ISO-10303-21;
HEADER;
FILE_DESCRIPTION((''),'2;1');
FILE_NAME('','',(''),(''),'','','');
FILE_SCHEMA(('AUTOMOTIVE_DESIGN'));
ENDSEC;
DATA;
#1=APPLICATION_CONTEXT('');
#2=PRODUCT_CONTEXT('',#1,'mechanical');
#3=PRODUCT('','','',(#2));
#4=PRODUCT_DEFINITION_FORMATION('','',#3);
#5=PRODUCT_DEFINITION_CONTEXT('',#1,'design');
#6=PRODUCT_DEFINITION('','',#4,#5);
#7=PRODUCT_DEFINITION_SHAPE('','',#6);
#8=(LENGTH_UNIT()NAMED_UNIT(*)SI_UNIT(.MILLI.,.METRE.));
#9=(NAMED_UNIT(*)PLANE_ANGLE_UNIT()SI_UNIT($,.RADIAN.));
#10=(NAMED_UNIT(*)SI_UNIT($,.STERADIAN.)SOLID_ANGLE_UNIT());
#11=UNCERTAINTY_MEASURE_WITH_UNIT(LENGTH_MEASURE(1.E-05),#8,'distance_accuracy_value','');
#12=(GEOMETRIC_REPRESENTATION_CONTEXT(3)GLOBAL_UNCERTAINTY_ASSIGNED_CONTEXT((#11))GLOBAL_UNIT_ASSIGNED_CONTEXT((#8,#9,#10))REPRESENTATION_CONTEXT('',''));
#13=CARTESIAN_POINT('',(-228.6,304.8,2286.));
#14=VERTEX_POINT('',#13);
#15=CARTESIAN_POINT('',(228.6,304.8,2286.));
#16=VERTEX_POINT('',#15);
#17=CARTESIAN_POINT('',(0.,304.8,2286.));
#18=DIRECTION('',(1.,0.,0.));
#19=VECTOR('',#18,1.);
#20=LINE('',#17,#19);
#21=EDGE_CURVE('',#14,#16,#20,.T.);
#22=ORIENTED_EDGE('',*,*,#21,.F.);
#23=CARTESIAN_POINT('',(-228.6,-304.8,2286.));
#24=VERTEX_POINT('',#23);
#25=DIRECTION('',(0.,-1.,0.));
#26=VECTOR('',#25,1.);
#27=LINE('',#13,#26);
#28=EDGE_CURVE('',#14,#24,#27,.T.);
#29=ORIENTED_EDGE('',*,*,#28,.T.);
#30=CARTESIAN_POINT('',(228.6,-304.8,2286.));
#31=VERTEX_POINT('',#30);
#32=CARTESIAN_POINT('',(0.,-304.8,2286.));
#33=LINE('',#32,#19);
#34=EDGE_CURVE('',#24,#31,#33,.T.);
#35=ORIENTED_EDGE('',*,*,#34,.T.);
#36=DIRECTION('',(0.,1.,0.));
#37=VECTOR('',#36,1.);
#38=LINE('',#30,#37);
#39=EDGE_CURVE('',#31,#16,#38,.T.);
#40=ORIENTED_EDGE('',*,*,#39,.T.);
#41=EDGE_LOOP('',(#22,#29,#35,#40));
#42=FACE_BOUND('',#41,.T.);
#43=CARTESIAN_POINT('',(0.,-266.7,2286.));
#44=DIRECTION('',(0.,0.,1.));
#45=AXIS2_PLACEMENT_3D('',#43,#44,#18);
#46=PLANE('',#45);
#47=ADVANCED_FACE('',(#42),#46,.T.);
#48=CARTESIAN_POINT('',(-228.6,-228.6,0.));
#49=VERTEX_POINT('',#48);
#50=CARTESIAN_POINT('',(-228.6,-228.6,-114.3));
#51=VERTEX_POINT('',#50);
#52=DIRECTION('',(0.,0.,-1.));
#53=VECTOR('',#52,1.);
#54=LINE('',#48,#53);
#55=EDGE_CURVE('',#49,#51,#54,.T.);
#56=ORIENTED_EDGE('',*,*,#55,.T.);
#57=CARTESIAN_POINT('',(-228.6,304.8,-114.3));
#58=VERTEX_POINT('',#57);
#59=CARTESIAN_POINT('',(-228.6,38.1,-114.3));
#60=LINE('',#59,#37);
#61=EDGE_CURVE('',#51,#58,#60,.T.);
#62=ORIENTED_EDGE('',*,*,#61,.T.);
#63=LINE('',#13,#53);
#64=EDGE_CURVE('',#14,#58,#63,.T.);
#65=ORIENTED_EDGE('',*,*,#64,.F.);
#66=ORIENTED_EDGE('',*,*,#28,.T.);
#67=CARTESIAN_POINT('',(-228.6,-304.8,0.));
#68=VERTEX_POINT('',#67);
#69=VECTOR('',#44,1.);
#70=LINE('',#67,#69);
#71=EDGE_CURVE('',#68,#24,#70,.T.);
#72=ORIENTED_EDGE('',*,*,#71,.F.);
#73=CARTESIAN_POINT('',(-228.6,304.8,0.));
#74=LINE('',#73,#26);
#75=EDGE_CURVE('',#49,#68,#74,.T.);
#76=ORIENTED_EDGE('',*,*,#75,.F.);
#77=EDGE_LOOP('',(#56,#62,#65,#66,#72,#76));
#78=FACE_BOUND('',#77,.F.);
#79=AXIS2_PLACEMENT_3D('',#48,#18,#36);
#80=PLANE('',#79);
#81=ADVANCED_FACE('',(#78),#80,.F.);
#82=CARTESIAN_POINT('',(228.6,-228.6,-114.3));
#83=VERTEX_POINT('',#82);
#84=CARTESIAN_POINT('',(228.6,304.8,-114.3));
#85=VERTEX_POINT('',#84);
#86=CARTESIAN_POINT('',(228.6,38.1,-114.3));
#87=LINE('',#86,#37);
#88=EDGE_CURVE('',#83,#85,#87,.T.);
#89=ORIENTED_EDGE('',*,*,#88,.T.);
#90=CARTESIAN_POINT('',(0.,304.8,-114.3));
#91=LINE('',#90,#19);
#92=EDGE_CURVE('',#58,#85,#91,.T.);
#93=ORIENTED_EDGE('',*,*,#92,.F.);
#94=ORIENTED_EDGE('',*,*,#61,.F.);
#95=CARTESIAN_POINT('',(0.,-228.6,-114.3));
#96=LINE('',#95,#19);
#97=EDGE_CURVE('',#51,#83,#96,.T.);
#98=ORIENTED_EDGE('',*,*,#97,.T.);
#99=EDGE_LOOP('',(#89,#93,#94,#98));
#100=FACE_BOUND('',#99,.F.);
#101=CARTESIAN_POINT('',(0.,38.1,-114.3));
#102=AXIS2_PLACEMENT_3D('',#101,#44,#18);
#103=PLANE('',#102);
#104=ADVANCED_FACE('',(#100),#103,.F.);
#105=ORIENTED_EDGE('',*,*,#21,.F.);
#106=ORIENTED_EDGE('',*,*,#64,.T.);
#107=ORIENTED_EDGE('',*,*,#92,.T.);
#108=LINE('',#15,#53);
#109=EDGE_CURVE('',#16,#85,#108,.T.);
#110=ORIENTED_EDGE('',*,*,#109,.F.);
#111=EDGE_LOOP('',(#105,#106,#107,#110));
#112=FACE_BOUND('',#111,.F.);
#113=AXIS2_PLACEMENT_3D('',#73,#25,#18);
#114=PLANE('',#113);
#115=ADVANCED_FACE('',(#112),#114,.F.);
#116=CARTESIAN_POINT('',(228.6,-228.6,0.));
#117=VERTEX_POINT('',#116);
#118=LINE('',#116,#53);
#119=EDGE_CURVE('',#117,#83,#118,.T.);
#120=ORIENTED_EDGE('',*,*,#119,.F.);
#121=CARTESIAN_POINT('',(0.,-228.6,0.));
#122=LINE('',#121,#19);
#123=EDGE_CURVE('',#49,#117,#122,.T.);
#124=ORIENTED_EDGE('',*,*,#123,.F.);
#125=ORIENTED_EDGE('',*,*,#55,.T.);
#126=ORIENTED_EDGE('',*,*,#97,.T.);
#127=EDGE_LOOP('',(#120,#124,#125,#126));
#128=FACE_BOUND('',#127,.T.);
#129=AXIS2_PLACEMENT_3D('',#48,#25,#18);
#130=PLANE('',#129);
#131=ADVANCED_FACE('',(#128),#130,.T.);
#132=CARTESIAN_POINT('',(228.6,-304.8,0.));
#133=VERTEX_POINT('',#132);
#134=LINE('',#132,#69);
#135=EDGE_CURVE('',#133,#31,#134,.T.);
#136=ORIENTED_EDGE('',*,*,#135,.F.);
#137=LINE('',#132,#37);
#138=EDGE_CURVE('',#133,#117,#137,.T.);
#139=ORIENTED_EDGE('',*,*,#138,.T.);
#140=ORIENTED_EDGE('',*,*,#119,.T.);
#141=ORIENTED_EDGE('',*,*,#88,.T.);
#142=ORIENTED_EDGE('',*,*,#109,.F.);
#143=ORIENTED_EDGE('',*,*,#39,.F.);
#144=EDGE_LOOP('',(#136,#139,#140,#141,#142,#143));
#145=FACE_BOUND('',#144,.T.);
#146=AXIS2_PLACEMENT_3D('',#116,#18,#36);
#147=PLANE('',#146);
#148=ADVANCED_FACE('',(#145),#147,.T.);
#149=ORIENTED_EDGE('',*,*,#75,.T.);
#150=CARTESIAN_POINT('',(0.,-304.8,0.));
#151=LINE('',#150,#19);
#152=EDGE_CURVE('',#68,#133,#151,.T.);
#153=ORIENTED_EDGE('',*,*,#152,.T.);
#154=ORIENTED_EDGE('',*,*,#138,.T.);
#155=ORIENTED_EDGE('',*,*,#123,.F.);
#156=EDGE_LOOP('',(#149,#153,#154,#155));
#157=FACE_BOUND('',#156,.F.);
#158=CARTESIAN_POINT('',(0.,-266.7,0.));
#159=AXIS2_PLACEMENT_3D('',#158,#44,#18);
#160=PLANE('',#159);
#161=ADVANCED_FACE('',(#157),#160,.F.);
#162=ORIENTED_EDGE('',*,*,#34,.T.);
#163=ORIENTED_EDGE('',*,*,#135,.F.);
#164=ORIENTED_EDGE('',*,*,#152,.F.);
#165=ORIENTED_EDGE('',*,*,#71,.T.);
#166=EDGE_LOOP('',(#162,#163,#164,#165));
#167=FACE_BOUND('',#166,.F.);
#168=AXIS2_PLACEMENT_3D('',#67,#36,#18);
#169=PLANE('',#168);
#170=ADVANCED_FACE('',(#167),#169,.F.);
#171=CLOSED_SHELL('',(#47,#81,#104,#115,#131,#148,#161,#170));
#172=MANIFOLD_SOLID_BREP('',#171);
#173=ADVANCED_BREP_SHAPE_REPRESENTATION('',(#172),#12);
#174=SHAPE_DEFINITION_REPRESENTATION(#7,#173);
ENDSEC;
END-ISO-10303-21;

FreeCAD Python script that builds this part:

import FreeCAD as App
import Part
import Sketcher
Q = App.Units.Quantity

doc = App.newDocument("Part")
params = doc.addObject("Spreadsheet::Sheet", "Params")
for row, (alias, value) in enumerate([
    ("sketch1_width", "18 in"),
    ("sketch1_height", "24 in"),
    ("pad1_length", "90 in"),
    ("sketch2_width", "18 in"),
    ("sketch2_height", "21 in"),
    ("pad2_length", "4.5 in"),
], start=1):
    params.set(f"A{row}", alias)
    params.set(f"B{row}", "=" + value)
    params.setAlias(f"B{row}", alias)

body = doc.addObject("PartDesign::Body", "Body")

# Sketch on XY plane
sketch1 = body.newObject("Sketcher::SketchObject", "Sketch")
sketch1.AttachmentSupport = (doc.getObject("XY_Plane"), [""])
sketch1.MapMode = "FlatFace"
sketch1.addGeometry(Part.LineSegment(App.Vector(-229, -305, 0), App.Vector(229, -305, 0)), False)
sketch1.addGeometry(Part.LineSegment(App.Vector(229, -305, 0), App.Vector(229, 305, 0)), False)
sketch1.addGeometry(Part.LineSegment(App.Vector(229, 305, 0), App.Vector(-229, 305, 0)), False)
sketch1.addGeometry(Part.LineSegment(App.Vector(-229, 305, 0), App.Vector(-229, -305, 0)), False)
sketch1.addConstraint(Sketcher.Constraint("Coincident", 0, 2, 1, 1))
sketch1.addConstraint(Sketcher.Constraint("Coincident", 1, 2, 2, 1))
sketch1.addConstraint(Sketcher.Constraint("Coincident", 2, 2, 3, 1))
sketch1.addConstraint(Sketcher.Constraint("Coincident", 3, 2, 0, 1))
sketch1.addConstraint(Sketcher.Constraint("Horizontal", 0))
sketch1.addConstraint(Sketcher.Constraint("Vertical", 1))
sketch1.addConstraint(Sketcher.Constraint("Horizontal", 2))
sketch1.addConstraint(Sketcher.Constraint("Vertical", 3))
sketch1.addConstraint(Sketcher.Constraint("Symmetric", 0, 2, 2, 2, -1, 1))
sketch1.addConstraint(Sketcher.Constraint("DistanceX", 0, 1, 0, 2, Q("18 in")))
sketch1.addConstraint(Sketcher.Constraint("DistanceY", 1, 1, 1, 2, Q("24 in")))
sketch1.setExpression("Constraints[9]", "Params.sketch1_width")
sketch1.setExpression("Constraints[10]", "Params.sketch1_height")
pad1 = body.newObject("PartDesign::Pad", "Pad")
pad1.Profile = sketch1
pad1.setExpression("Length", "Params.pad1_length")

# Sketch on XY plane
sketch2 = body.newObject("Sketcher::SketchObject", "Sketch001")
sketch2.AttachmentSupport = (doc.getObject("XY_Plane"), [""])
sketch2.MapMode = "FlatFace"
sketch2.addGeometry(Part.LineSegment(App.Vector(-229, 305, 0), App.Vector(-229, -229, 0)), False)
sketch2.addGeometry(Part.LineSegment(App.Vector(-229, -229, 0), App.Vector(229, -229, 0)), False)
sketch2.addGeometry(Part.LineSegment(App.Vector(229, -229, 0), App.Vector(229, 305, 0)), False)
sketch2.addGeometry(Part.LineSegment(App.Vector(229, 305, 0), App.Vector(-229, 305, 0)), False)
sketch2.addConstraint(Sketcher.Constraint("Coincident", 0, 2, 1, 1))
sketch2.addConstraint(Sketcher.Constraint("Coincident", 1, 2, 2, 1))
sketch2.addConstraint(Sketcher.Constraint("Coincident", 2, 2, 3, 1))
sketch2.addConstraint(Sketcher.Constraint("Coincident", 3, 2, 0, 1))
sketch2.addConstraint(Sketcher.Constraint("Vertical", 0))
sketch2.addConstraint(Sketcher.Constraint("Horizontal", 1))
sketch2.addConstraint(Sketcher.Constraint("Vertical", 2))
sketch2.addConstraint(Sketcher.Constraint("Horizontal", 3))
sketch2.addConstraint(Sketcher.Constraint("DistanceX", 1, 1, 1, 2, Q("18 in")))
sketch2.addConstraint(Sketcher.Constraint("DistanceY", 0, 2, 0, 1, Q("21 in")))
sketch2.addConstraint(Sketcher.Constraint("DistanceX", 0, 2, -1, 1, Q("9 in")))
sketch2.addConstraint(Sketcher.Constraint("DistanceY", 0, 2, -1, 1, Q("9 in")))
sketch2.setExpression("Constraints[8]", "Params.sketch2_width")
sketch2.setExpression("Constraints[9]", "Params.sketch2_height")
pad2 = body.newObject("PartDesign::Pad", "Pad001")
pad2.Profile = sketch2
pad2.setExpression("Length", "Params.pad2_length")
pad2.Reversed = True

doc.recompute()
